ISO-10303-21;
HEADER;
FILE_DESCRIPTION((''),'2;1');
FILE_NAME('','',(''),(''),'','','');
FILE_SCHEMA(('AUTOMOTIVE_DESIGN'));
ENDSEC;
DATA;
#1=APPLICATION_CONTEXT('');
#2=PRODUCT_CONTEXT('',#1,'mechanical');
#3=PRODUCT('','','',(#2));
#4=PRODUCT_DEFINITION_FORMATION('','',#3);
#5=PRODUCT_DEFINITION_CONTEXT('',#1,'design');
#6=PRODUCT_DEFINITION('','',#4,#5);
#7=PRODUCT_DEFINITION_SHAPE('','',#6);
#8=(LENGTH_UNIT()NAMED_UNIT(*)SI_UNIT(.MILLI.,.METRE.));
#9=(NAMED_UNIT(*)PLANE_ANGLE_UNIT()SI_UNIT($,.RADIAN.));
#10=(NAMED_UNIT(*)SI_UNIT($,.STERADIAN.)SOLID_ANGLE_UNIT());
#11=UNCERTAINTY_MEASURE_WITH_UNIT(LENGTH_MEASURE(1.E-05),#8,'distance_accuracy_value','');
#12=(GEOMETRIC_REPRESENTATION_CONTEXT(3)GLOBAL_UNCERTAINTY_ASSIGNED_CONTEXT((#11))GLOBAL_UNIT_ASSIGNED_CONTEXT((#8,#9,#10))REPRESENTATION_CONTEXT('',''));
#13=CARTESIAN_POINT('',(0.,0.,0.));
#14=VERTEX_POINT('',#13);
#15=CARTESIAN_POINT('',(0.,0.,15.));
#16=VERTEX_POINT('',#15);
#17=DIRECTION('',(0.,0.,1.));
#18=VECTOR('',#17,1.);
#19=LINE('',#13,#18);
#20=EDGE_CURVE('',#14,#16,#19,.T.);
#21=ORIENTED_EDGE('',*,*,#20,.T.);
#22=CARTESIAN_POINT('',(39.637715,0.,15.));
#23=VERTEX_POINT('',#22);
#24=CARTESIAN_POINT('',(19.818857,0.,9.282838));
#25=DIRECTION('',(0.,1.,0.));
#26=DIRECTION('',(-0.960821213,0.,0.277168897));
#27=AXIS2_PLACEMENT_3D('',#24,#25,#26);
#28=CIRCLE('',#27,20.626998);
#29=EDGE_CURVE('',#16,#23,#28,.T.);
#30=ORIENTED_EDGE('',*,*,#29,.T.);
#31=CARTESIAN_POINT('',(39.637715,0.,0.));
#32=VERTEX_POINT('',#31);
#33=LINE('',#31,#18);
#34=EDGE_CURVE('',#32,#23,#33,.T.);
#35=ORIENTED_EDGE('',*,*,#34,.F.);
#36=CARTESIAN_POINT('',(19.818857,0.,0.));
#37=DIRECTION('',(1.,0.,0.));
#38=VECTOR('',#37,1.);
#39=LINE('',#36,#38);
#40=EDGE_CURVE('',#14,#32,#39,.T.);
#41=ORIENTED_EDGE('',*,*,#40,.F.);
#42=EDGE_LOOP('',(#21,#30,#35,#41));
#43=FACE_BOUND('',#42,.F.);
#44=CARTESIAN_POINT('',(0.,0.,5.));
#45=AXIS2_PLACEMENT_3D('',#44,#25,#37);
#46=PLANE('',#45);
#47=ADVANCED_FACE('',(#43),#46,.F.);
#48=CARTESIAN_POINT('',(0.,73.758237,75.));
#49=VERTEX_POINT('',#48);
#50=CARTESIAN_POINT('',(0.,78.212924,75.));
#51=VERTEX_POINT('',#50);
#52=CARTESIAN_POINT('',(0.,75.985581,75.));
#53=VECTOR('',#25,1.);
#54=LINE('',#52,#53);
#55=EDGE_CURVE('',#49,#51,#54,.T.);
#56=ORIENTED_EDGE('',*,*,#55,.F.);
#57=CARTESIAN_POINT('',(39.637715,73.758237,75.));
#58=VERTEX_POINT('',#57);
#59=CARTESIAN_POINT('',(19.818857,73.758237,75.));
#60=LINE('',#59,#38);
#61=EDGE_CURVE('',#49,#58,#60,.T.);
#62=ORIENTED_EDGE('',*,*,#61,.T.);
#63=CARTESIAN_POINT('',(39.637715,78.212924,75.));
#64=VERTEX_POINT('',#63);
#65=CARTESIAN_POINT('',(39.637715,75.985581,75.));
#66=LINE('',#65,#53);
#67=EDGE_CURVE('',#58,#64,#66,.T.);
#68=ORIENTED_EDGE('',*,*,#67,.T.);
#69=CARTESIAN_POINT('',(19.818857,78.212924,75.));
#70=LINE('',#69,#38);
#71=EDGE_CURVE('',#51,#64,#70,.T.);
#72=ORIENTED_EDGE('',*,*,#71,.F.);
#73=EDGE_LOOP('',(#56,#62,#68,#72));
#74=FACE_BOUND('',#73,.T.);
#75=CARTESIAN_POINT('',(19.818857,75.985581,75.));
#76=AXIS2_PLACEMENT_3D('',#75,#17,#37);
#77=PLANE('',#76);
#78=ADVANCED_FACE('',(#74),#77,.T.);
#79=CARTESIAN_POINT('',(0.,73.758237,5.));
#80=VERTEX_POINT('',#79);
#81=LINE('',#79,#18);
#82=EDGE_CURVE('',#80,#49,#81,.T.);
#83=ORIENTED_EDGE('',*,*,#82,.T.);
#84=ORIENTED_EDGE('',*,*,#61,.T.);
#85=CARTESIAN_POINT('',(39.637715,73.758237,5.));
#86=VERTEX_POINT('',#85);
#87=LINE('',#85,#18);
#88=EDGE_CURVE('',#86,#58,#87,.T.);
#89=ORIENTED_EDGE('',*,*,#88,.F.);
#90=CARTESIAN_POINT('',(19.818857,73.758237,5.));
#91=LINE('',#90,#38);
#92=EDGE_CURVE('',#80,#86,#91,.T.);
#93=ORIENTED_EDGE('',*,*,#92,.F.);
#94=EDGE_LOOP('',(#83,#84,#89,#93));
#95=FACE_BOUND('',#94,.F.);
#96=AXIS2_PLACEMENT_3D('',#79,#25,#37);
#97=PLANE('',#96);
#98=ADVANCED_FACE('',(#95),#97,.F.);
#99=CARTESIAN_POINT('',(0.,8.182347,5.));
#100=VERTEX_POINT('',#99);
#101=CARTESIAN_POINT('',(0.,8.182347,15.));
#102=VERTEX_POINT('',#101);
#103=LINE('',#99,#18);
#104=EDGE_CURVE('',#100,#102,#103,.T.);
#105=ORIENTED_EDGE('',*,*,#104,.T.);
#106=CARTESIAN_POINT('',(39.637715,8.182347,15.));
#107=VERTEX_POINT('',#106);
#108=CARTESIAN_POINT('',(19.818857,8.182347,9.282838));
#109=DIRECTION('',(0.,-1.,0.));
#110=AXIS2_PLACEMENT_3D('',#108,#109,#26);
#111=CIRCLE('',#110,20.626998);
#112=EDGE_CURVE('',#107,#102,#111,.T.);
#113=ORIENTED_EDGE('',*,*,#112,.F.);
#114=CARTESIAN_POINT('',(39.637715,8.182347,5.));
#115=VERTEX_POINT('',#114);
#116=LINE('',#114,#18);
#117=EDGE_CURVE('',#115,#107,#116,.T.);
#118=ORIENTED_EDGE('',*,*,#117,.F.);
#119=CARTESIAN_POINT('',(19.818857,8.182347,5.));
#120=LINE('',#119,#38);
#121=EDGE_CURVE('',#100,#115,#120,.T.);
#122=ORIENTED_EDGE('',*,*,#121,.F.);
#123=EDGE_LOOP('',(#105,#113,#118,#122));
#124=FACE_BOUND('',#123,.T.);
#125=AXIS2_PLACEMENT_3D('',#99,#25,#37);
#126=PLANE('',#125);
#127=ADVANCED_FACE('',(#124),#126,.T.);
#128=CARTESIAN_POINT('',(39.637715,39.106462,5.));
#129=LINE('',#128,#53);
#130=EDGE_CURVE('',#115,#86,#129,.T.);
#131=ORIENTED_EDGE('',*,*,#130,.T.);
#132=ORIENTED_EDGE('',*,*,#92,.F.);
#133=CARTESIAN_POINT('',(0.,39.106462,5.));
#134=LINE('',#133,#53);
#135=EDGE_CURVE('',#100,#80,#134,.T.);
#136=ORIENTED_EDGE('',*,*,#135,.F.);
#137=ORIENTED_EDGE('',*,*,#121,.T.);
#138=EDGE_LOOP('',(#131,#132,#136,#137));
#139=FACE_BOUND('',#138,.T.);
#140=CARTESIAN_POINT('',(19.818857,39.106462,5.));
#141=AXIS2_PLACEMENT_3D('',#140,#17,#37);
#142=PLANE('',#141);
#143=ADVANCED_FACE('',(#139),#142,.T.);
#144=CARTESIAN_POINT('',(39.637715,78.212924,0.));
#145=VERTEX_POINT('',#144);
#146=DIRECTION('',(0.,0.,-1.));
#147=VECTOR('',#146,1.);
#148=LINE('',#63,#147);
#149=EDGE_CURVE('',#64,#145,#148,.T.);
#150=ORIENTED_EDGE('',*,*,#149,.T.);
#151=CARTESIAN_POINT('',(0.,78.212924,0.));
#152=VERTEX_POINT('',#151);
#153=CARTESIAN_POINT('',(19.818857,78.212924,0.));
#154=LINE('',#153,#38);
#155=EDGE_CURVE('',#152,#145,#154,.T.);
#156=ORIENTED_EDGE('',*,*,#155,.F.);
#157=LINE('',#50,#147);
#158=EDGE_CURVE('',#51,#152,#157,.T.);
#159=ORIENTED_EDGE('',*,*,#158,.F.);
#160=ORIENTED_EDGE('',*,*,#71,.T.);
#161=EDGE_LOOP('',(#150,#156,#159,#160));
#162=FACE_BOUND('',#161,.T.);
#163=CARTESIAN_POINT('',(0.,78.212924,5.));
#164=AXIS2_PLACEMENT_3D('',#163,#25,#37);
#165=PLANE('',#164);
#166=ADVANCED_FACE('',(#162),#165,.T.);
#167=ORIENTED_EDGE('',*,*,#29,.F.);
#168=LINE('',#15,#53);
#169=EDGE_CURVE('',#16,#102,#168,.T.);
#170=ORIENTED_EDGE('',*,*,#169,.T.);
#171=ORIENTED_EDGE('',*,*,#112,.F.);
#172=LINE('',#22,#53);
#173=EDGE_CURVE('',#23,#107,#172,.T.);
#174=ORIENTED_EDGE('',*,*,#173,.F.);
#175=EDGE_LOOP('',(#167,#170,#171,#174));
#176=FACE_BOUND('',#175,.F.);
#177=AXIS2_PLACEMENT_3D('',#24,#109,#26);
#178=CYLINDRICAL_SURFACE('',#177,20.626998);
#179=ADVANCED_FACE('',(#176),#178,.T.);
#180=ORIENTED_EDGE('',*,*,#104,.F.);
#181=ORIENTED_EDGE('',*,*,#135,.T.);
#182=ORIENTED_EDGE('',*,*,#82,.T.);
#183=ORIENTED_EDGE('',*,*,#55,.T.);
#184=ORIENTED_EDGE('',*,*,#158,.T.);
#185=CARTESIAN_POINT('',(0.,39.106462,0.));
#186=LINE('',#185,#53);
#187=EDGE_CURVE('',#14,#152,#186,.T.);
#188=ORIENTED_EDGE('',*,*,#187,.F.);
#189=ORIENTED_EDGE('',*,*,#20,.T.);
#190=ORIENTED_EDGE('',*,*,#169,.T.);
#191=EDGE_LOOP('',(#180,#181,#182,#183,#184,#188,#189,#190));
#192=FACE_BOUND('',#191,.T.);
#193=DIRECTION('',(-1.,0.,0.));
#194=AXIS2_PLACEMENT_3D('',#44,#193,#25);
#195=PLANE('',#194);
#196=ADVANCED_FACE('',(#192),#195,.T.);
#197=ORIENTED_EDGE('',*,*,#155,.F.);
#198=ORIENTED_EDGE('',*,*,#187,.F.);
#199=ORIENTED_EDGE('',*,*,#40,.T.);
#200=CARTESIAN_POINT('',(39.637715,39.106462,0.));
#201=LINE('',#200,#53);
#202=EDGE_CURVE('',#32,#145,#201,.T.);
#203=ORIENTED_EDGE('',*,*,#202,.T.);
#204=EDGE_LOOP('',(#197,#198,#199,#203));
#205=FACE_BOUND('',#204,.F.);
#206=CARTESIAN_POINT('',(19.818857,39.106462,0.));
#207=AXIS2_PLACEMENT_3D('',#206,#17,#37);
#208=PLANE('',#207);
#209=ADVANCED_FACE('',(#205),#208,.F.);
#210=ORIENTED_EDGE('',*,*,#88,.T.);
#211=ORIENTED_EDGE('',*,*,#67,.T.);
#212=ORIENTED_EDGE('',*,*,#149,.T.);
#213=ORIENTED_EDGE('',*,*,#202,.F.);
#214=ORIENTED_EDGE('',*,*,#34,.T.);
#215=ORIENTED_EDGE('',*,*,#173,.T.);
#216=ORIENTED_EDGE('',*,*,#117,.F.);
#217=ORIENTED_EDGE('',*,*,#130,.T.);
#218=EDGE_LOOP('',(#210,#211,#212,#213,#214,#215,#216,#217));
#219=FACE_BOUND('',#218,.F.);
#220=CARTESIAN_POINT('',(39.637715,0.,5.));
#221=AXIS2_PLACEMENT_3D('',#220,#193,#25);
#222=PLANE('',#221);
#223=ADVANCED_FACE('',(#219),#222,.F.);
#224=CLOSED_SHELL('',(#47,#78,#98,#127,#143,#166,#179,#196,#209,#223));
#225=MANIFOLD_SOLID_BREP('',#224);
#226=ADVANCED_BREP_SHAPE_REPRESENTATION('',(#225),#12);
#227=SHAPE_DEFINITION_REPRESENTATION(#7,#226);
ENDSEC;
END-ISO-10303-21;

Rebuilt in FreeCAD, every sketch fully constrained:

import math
import FreeCAD as App
import Part
import Sketcher

V = App.Vector

doc = App.newDocument("Part")
body = doc.addObject("PartDesign::Body", "Body")

# Sketch on XY plane
sketch1 = doc.addObject("Sketcher::SketchObject", "Sketch")
body.addObject(sketch1)
sketch1.AttachmentSupport = (doc.XY_Plane, [""])
sketch1.MapMode = "FlatFace"
sketch1.addGeometry(Part.LineSegment(V(0, 78.212924, 0), V(0, 0, 0)), False)
sketch1.addGeometry(Part.LineSegment(V(0, 0, 0), V(39.637715, 0, 0)), False)
sketch1.addGeometry(Part.LineSegment(V(39.637715, 0, 0), V(39.637715, 78.212924, 0)), False)
sketch1.addGeometry(Part.LineSegment(V(39.637715, 78.212924, 0), V(0, 78.212924, 0)), False)
sketch1.addConstraint(Sketcher.Constraint("Coincident", 0, 2, 1, 1))
sketch1.addConstraint(Sketcher.Constraint("Coincident", 1, 2, 2, 1))
sketch1.addConstraint(Sketcher.Constraint("Coincident", 2, 2, 3, 1))
sketch1.addConstraint(Sketcher.Constraint("Coincident", 3, 2, 0, 1))
sketch1.addConstraint(Sketcher.Constraint("Vertical", 0))
sketch1.addConstraint(Sketcher.Constraint("Horizontal", 1))
sketch1.addConstraint(Sketcher.Constraint("Vertical", 2))
sketch1.addConstraint(Sketcher.Constraint("Horizontal", 3))
sketch1.addConstraint(Sketcher.Constraint("Coincident", 0, 2, -1, 1))
sketch1.addConstraint(Sketcher.Constraint("DistanceX", 1, 1, 1, 2, 39.637715))
sketch1.addConstraint(Sketcher.Constraint("DistanceY", 0, 2, 0, 1, 78.212924))
pad1 = doc.addObject("PartDesign::Pad", "Pad")
body.addObject(pad1)
pad1.Profile = sketch1
pad1.Length = 5

# Sketch on XY plane
sketch2 = doc.addObject("Sketcher::SketchObject", "Sketch001")
body.addObject(sketch2)
sketch2.AttachmentSupport = (doc.XY_Plane, [""])
sketch2.MapMode = "FlatFace"
sketch2.AttachmentOffset = App.Placement(V(0, 0, 5), App.Rotation())
sketch2.addGeometry(Part.LineSegment(V(0, 78.212924, 0), V(0, 73.758237, 0)), False)
sketch2.addGeometry(Part.LineSegment(V(0, 73.758237, 0), V(39.637715, 73.758237, 0)), False)
sketch2.addGeometry(Part.LineSegment(V(39.637715, 73.758237, 0), V(39.637715, 78.212924, 0)), False)
sketch2.addGeometry(Part.LineSegment(V(39.637715, 78.212924, 0), V(0, 78.212924, 0)), False)
sketch2.addConstraint(Sketcher.Constraint("Coincident", 0, 2, 1, 1))
sketch2.addConstraint(Sketcher.Constraint("Coincident", 1, 2, 2, 1))
sketch2.addConstraint(Sketcher.Constraint("Coincident", 2, 2, 3, 1))
sketch2.addConstraint(Sketcher.Constraint("Coincident", 3, 2, 0, 1))
sketch2.addConstraint(Sketcher.Constraint("Vertical", 0))
sketch2.addConstraint(Sketcher.Constraint("Horizontal", 1))
sketch2.addConstraint(Sketcher.Constraint("Vertical", 2))
sketch2.addConstraint(Sketcher.Constraint("Horizontal", 3))
sketch2.addConstraint(Sketcher.Constraint("PointOnObject", 0, 2, -2))
sketch2.addConstraint(Sketcher.Constraint("DistanceX", 1, 1, 1, 2, 39.637715))
sketch2.addConstraint(Sketcher.Constraint("DistanceY", 0, 2, 0, 1, 4.454687))
sketch2.addConstraint(Sketcher.Constraint("DistanceY", -1, 1, 0, 2, 73.758237))
pad2 = doc.addObject("PartDesign::Pad", "Pad001")
body.addObject(pad2)
pad2.Profile = sketch2
pad2.Length = 70

# Sketch on XY plane
sketch3 = doc.addObject("Sketcher::SketchObject", "Sketch002")
body.addObject(sketch3)
sketch3.AttachmentSupport = (doc.XY_Plane, [""])
sketch3.MapMode = "FlatFace"
sketch3.AttachmentOffset = App.Placement(V(0, 0, 5), App.Rotation())
sketch3.addGeometry(Part.LineSegment(V(0, 8.182347, 0), V(0, 0, 0)), False)
sketch3.addGeometry(Part.LineSegment(V(0, 0, 0), V(39.637715, 0, 0)), False)
sketch3.addGeometry(Part.LineSegment(V(39.637715, 0, 0), V(39.637715, 8.182347, 0)), False)
sketch3.addGeometry(Part.LineSegment(V(39.637715, 8.182347, 0), V(0, 8.182347, 0)), False)
sketch3.addConstraint(Sketcher.Constraint("Coincident", 0, 2, 1, 1))
sketch3.addConstraint(Sketcher.Constraint("Coincident", 1, 2, 2, 1))
sketch3.addConstraint(Sketcher.Constraint("Coincident", 2, 2, 3, 1))
sketch3.addConstraint(Sketcher.Constraint("Coincident", 3, 2, 0, 1))
sketch3.addConstraint(Sketcher.Constraint("Vertical", 0))
sketch3.addConstraint(Sketcher.Constraint("Horizontal", 1))
sketch3.addConstraint(Sketcher.Constraint("Vertical", 2))
sketch3.addConstraint(Sketcher.Constraint("Horizontal", 3))
sketch3.addConstraint(Sketcher.Constraint("Coincident", 0, 2, -1, 1))
sketch3.addConstraint(Sketcher.Constraint("DistanceX", 1, 1, 1, 2, 39.637715))
sketch3.addConstraint(Sketcher.Constraint("DistanceY", 0, 2, 0, 1, 8.182347))
pad3 = doc.addObject("PartDesign::Pad", "Pad002")
body.addObject(pad3)
pad3.Profile = sketch3
pad3.Length = 25

# Sketch on XZ plane
sketch4 = doc.addObject("Sketcher::SketchObject", "Sketch003")
body.addObject(sketch4)
sketch4.AttachmentSupport = (doc.XZ_Plane, [""])
sketch4.MapMode = "FlatFace"
sketch4.addGeometry(Part.ArcOfCircle(Part.Circle(V(19.818857, 9.282838, 0), V(0, 0, 1), 20.626998), math.radians(16.091308), math.radians(163.908692)), False)
sketch4.addGeometry(Part.LineSegment(V(39.637715, 15, 0), V(39.637715, 30, 0)), False)
sketch4.addGeometry(Part.LineSegment(V(39.637715, 30, 0), V(0, 30, 0)), False)
sketch4.addGeometry(Part.LineSegment(V(0, 30, 0), V(0, 15, 0)), False)
sketch4.addConstraint(Sketcher.Constraint("Coincident", 0, 1, 1, 1))
sketch4.addConstraint(Sketcher.Constraint("Coincident", 1, 2, 2, 1))
sketch4.addConstraint(Sketcher.Constraint("Coincident", 2, 2, 3, 1))
sketch4.addConstraint(Sketcher.Constraint("Coincident", 3, 2, 0, 2))
sketch4.addConstraint(Sketcher.Constraint("Vertical", 1))
sketch4.addConstraint(Sketcher.Constraint("Horizontal", 2))
sketch4.addConstraint(Sketcher.Constraint("Vertical", 3))
sketch4.addConstraint(Sketcher.Constraint("PointOnObject", 2, 2, -2))
sketch4.addConstraint(Sketcher.Constraint("Horizontal", 0, 1, 3, 2))
sketch4.addConstraint(Sketcher.Constraint("DistanceY", 1, 1, 1, 2, 15.0))
sketch4.addConstraint(Sketcher.Constraint("DistanceY", -1, 1, 0, 1, 15.0))
sketch4.addConstraint(Sketcher.Constraint("Radius", 0, 20.626998))
sketch4.addConstraint(Sketcher.Constraint("DistanceX", 2, 2, 2, 1, 39.637715))
pocket1 = doc.addObject("PartDesign::Pocket", "Pocket")
body.addObject(pocket1)
pocket1.Profile = sketch4
pocket1.Length = 25

doc.recompute()
